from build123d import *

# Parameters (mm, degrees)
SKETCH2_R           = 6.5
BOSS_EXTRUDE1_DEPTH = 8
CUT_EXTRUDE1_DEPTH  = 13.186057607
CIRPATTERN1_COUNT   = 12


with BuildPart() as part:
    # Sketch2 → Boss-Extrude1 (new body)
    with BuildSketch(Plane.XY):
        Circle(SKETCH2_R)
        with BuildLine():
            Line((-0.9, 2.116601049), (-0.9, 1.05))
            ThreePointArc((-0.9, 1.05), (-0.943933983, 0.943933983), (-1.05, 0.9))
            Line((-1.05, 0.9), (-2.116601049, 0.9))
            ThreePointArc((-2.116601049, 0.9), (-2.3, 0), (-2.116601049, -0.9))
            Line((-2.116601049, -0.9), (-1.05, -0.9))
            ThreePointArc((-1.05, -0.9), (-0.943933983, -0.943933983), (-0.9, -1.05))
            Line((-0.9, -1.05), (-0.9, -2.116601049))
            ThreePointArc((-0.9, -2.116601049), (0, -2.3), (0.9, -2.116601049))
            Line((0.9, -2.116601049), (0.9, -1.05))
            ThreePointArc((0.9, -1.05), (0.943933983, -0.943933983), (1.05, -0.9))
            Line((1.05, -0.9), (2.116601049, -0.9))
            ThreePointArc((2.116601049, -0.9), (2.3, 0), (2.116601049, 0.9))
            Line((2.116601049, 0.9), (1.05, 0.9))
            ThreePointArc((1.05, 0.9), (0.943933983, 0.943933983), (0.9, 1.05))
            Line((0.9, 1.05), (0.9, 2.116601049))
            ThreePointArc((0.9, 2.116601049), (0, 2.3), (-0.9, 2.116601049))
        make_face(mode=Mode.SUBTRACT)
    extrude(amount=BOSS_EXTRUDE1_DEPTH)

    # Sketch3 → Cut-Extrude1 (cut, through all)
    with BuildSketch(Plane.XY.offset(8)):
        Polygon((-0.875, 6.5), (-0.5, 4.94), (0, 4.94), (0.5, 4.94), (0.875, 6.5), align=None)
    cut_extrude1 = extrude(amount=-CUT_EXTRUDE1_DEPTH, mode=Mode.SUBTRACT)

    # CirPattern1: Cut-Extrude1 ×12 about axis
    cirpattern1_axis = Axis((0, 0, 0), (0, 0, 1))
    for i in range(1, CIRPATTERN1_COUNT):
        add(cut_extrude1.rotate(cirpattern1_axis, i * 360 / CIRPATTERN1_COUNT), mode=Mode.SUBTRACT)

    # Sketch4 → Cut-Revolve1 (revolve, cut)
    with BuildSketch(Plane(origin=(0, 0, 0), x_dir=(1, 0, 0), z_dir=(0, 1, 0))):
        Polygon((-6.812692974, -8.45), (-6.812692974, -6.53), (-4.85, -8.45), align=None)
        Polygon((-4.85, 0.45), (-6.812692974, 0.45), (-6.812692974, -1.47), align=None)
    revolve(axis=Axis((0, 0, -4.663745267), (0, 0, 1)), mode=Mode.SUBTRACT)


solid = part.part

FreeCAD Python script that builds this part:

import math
import FreeCAD as App
import Part
import Sketcher

V = App.Vector
Q = App.Units.Quantity

doc = App.newDocument("Part")
body = doc.addObject("PartDesign::Body", "Body")

# Sketch on XY plane
sketch1 = doc.addObject("Sketcher::SketchObject", "Sketch")
body.addObject(sketch1)
sketch1.AttachmentSupport = (doc.XY_Plane, [""])
sketch1.MapMode = "FlatFace"
sketch1.addGeometry(Part.Circle(V(0, 0, 0), V(0, 0, 1), 6.5), False)
sketch1.addGeometry(Part.LineSegment(V(-0.9, 1.05, 0), V(-0.9, 2.116601, 0)), False)
sketch1.addGeometry(Part.ArcOfCircle(Part.Circle(V(0, 0, 0), V(0, 0, 1), 2.3), math.radians(66.964316), math.radians(113.035684)), False)
sketch1.addGeometry(Part.LineSegment(V(0.9, 2.116601, 0), V(0.9, 1.05, 0)), False)
sketch1.addGeometry(Part.ArcOfCircle(Part.Circle(V(1.05, 1.05, 0), V(0, 0, 1), 0.15), math.radians(-180), math.radians(-90)), False)
sketch1.addGeometry(Part.LineSegment(V(1.05, 0.9, 0), V(2.116601, 0.9, 0)), False)
sketch1.addGeometry(Part.ArcOfCircle(Part.Circle(V(0, 0, 0), V(0, 0, 1), 2.3), math.radians(-23.035684), math.radians(23.035684)), False)
sketch1.addGeometry(Part.LineSegment(V(2.116601, -0.9, 0), V(1.05, -0.9, 0)), False)
sketch1.addGeometry(Part.ArcOfCircle(Part.Circle(V(1.05, -1.05, 0), V(0, 0, 1), 0.15), math.radians(90), math.radians(180)), False)
sketch1.addGeometry(Part.LineSegment(V(0.9, -1.05, 0), V(0.9, -2.116601, 0)), False)
sketch1.addGeometry(Part.ArcOfCircle(Part.Circle(V(0, 0, 0), V(0, 0, 1), 2.3), math.radians(-113.035684), math.radians(-66.964316)), False)
sketch1.addGeometry(Part.LineSegment(V(-0.9, -2.116601, 0), V(-0.9, -1.05, 0)), False)
sketch1.addGeometry(Part.ArcOfCircle(Part.Circle(V(-1.05, -1.05, 0), V(0, 0, 1), 0.15), math.radians(0), math.radians(90)), False)
sketch1.addGeometry(Part.LineSegment(V(-1.05, -0.9, 0), V(-2.116601, -0.9, 0)), False)
sketch1.addGeometry(Part.ArcOfCircle(Part.Circle(V(0, 0, 0), V(0, 0, 1), 2.3), math.radians(156.964316), math.radians(203.035684)), False)
sketch1.addGeometry(Part.LineSegment(V(-2.116601, 0.9, 0), V(-1.05, 0.9, 0)), False)
sketch1.addGeometry(Part.ArcOfCircle(Part.Circle(V(-1.05, 1.05, 0), V(0, 0, 1), 0.15), math.radians(-90), math.radians(0)), False)
sketch1.addConstraint(Sketcher.Constraint("Coincident", 1, 2, 2, 2))
sketch1.addConstraint(Sketcher.Constraint("Coincident", 2, 1, 3, 1))
sketch1.addConstraint(Sketcher.Constraint("Tangent", 3, 2, 4, 1))
sketch1.addConstraint(Sketcher.Constraint("Tangent", 4, 2, 5, 1))
sketch1.addConstraint(Sketcher.Constraint("Coincident", 5, 2, 6, 2))
sketch1.addConstraint(Sketcher.Constraint("Coincident", 6, 1, 7, 1))
sketch1.addConstraint(Sketcher.Constraint("Tangent", 7, 2, 8, 1))
sketch1.addConstraint(Sketcher.Constraint("Tangent", 8, 2, 9, 1))
sketch1.addConstraint(Sketcher.Constraint("Coincident", 9, 2, 10, 2))
sketch1.addConstraint(Sketcher.Constraint("Coincident", 10, 1, 11, 1))
sketch1.addConstraint(Sketcher.Constraint("Tangent", 11, 2, 12, 1))
sketch1.addConstraint(Sketcher.Constraint("Tangent", 12, 2, 13, 1))
sketch1.addConstraint(Sketcher.Constraint("Coincident", 13, 2, 14, 2))
sketch1.addConstraint(Sketcher.Constraint("Coincident", 14, 1, 15, 1))
sketch1.addConstraint(Sketcher.Constraint("Tangent", 15, 2, 16, 1))
sketch1.addConstraint(Sketcher.Constraint("Tangent", 16, 2, 1, 1))
sketch1.addConstraint(Sketcher.Constraint("Vertical", 1))
sketch1.addConstraint(Sketcher.Constraint("Vertical", 3))
sketch1.addConstraint(Sketcher.Constraint("Horizontal", 5))
sketch1.addConstraint(Sketcher.Constraint("Horizontal", 7))
sketch1.addConstraint(Sketcher.Constraint("Vertical", 9))
sketch1.addConstraint(Sketcher.Constraint("Vertical", 11))
sketch1.addConstraint(Sketcher.Constraint("Horizontal", 13))
sketch1.addConstraint(Sketcher.Constraint("Horizontal", 15))
sketch1.addConstraint(Sketcher.Constraint("Coincident", 0, 3, -1, 1))
sketch1.addConstraint(Sketcher.Constraint("Coincident", 2, 3, -1, 1))
sketch1.addConstraint(Sketcher.Constraint("Coincident", 6, 3, -1, 1))
sketch1.addConstraint(Sketcher.Constraint("Coincident", 10, 3, -1, 1))
sketch1.addConstraint(Sketcher.Constraint("Coincident", 14, 3, -1, 1))
sketch1.addConstraint(Sketcher.Constraint("Equal", 2, 6))
sketch1.addConstraint(Sketcher.Constraint("Equal", 4, 8))
sketch1.addConstraint(Sketcher.Constraint("Equal", 6, 10))
sketch1.addConstraint(Sketcher.Constraint("Equal", 8, 12))
sketch1.addConstraint(Sketcher.Constraint("Equal", 10, 14))
sketch1.addConstraint(Sketcher.Constraint("Equal", 12, 16))
sketch1.addConstraint(Sketcher.Constraint("Symmetric", 4, 3, 12, 3, -1, 1))
sketch1.addConstraint(Sketcher.Constraint("Symmetric", 8, 3, 16, 3, -1, 1))
sketch1.addConstraint(Sketcher.Constraint("Symmetric", 8, 3, 12, 3, -2))
sketch1.addConstraint(Sketcher.Constraint("Equal", 15, 1))
sketch1.addConstraint(Sketcher.Constraint("Diameter", 0, 13.0))
sketch1.addConstraint(Sketcher.Constraint("Radius", 2, 2.3))
sketch1.addConstraint(Sketcher.Constraint("Radius", 4, 0.15))
sketch1.addConstraint(Sketcher.Constraint("DistanceX", 1, 2, -1, 1, 0.9))
pad1 = doc.addObject("PartDesign::Pad", "Pad")
body.addObject(pad1)
pad1.Profile = sketch1
pad1.Length = 8

# Sketch on XY plane
sketch2 = doc.addObject("Sketcher::SketchObject", "Sketch001")
body.addObject(sketch2)
sketch2.AttachmentSupport = (doc.XY_Plane, [""])
sketch2.MapMode = "FlatFace"
sketch2.AttachmentOffset = App.Placement(V(0, 0, 8), App.Rotation())
sketch2.addGeometry(Part.LineSegment(V(-0.875, 6.5, 0), V(-0.5, 4.94, 0)), False)
sketch2.addGeometry(Part.LineSegment(V(-0.5, 4.94, 0), V(0.5, 4.94, 0)), False)
sketch2.addGeometry(Part.LineSegment(V(0.5, 4.94, 0), V(0.875, 6.5, 0)), False)
sketch2.addGeometry(Part.LineSegment(V(0.875, 6.5, 0), V(-0.875, 6.5, 0)), False)
sketch2.addConstraint(Sketcher.Constraint("Coincident", 0, 2, 1, 1))
sketch2.addConstraint(Sketcher.Constraint("Coincident", 1, 2, 2, 1))
sketch2.addConstraint(Sketcher.Constraint("Coincident", 2, 2, 3, 1))
sketch2.addConstraint(Sketcher.Constraint("Coincident", 3, 2, 0, 1))
sketch2.addConstraint(Sketcher.Constraint("Horizontal", 1))
sketch2.addConstraint(Sketcher.Constraint("Horizontal", 3))
sketch2.addConstraint(Sketcher.Constraint("Equal", 0, 2))
sketch2.addConstraint(Sketcher.Constraint("DistanceX", 1, 1, 1, 2, 1.0))
sketch2.addConstraint(Sketcher.Constraint("DistanceX", 3, 2, 3, 1, 1.75))
sketch2.addConstraint(Sketcher.Constraint("DistanceX", 0, 2, -1, 1, 0.5))
sketch2.addConstraint(Sketcher.Constraint("DistanceY", -1, 1, 2, 2, 6.5))
sketch2.addConstraint(Sketcher.Constraint("DistanceY", -1, 1, 0, 2, 4.94))
pocket1 = doc.addObject("PartDesign::Pocket", "Pocket")
body.addObject(pocket1)
pocket1.Profile = sketch2
pocket1.Type = "ThroughAll"
doc.recompute()

polarpattern = doc.addObject("PartDesign::PolarPattern", "PolarPattern")
body.addObject(polarpattern)
polarpattern.Originals = [pocket1]
polarpattern.Axis = (doc.Z_Axis, [""])
polarpattern.Angle = 360
polarpattern.Occurrences = 12
body.Tip = polarpattern

# Sketch on XZ plane
sketch3 = doc.addObject("Sketcher::SketchObject", "Sketch002")
body.addObject(sketch3)
sketch3.AttachmentSupport = (doc.XZ_Plane, [""])
sketch3.MapMode = "FlatFace"
sketch3.addGeometry(Part.LineSegment(V(-6.812693, 6.53, 0), V(-6.812693, 8.45, 0)), False)
sketch3.addGeometry(Part.LineSegment(V(-6.812693, 8.45, 0), V(-4.85, 8.45, 0)), False)
sketch3.addGeometry(Part.LineSegment(V(-4.85, 8.45, 0), V(-6.812693, 6.53, 0)), False)
sketch3.addGeometry(Part.LineSegment(V(-4.85, -0.45, 0), V(-6.812693, -0.45, 0)), False)
sketch3.addGeometry(Part.LineSegment(V(-6.812693, -0.45, 0), V(-6.812693, 1.47, 0)), False)
sketch3.addGeometry(Part.LineSegment(V(-6.812693, 1.47, 0), V(-4.85, -0.45, 0)), False)
sketch3.addConstraint(Sketcher.Constraint("Coincident", 0, 2, 1, 1))
sketch3.addConstraint(Sketcher.Constraint("Coincident", 1, 2, 2, 1))
sketch3.addConstraint(Sketcher.Constraint("Coincident", 2, 2, 0, 1))
sketch3.addConstraint(Sketcher.Constraint("Coincident", 3, 2, 4, 1))
sketch3.addConstraint(Sketcher.Constraint("Coincident", 4, 2, 5, 1))
sketch3.addConstraint(Sketcher.Constraint("Coincident", 5, 2, 3, 1))
sketch3.addConstraint(Sketcher.Constraint("Vertical", 0))
sketch3.addConstraint(Sketcher.Constraint("Horizontal", 1))
sketch3.addConstraint(Sketcher.Constraint("Horizontal", 3))
sketch3.addConstraint(Sketcher.Constraint("Vertical", 4))
sketch3.addConstraint(Sketcher.Constraint("Vertical", 2, 2, 3, 2))
sketch3.addConstraint(Sketcher.Constraint("Vertical", 1, 2, 5, 2))
sketch3.addConstraint(Sketcher.Constraint("Equal", 0, 4))
sketch3.addConstraint(Sketcher.Constraint("DistanceY", 0, 1, 0, 2, 1.92))
sketch3.addConstraint(Sketcher.Constraint("Angle", 2, Q("-135.629983 deg")))
sketch3.addConstraint(Sketcher.Constraint("DistanceY", 3, 2, 0, 2, 8.9))
sketch3.addConstraint(Sketcher.Constraint("DistanceY", -1, 1, 0, 2, 8.45))
sketch3.addConstraint(Sketcher.Constraint("DistanceX", 1, 2, -1, 1, 4.85))
groove = doc.addObject("PartDesign::Groove", "Groove")
body.addObject(groove)
groove.Profile = sketch3
groove.ReferenceAxis = (sketch3, ["V_Axis"])
groove.Angle = 360

doc.recompute()
